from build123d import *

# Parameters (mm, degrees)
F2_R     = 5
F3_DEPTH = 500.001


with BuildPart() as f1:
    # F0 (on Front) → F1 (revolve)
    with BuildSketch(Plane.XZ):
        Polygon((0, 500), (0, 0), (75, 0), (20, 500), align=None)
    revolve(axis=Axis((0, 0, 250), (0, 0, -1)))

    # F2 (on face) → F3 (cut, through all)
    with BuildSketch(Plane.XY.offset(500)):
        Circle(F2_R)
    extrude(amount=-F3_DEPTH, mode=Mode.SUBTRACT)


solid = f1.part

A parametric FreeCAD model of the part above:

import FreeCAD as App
import Part
import Sketcher
Q = App.Units.Quantity

doc = App.newDocument("Part")
params = doc.addObject("Spreadsheet::Sheet", "Params")
for row, (alias, value) in enumerate([
    ("sketch1_width", "75 mm"),
    ("sketch1_width2", "20 mm"),
    ("sketch1_height", "500 mm"),
    ("revolution_angle", "360 deg"),
    ("sketch2_diameter", "10 mm"),
], start=1):
    params.set(f"A{row}", alias)
    params.set(f"B{row}", "=" + value)
    params.setAlias(f"B{row}", alias)

body = doc.addObject("PartDesign::Body", "Body")

# Sketch on XZ plane
sketch1 = doc.addObject("Sketcher::SketchObject", "Sketch")
body.addObject(sketch1)
sketch1.AttachmentSupport = (doc.XZ_Plane, [""])
sketch1.MapMode = "FlatFace"
sketch1.addGeometry(Part.LineSegment(App.Vector(0, 500, 0), App.Vector(0, 0, 0)), False)
sketch1.addGeometry(Part.LineSegment(App.Vector(0, 0, 0), App.Vector(75, 0, 0)), False)
sketch1.addGeometry(Part.LineSegment(App.Vector(75, 0, 0), App.Vector(20, 500, 0)), False)
sketch1.addGeometry(Part.LineSegment(App.Vector(20, 500, 0), App.Vector(0, 500, 0)), False)
sketch1.addConstraint(Sketcher.Constraint("Coincident", 0, 2, 1, 1))
sketch1.addConstraint(Sketcher.Constraint("Coincident", 1, 2, 2, 1))
sketch1.addConstraint(Sketcher.Constraint("Coincident", 2, 2, 3, 1))
sketch1.addConstraint(Sketcher.Constraint("Coincident", 3, 2, 0, 1))
sketch1.addConstraint(Sketcher.Constraint("Vertical", 0))
sketch1.addConstraint(Sketcher.Constraint("Horizontal", 1))
sketch1.addConstraint(Sketcher.Constraint("Horizontal", 3))
sketch1.addConstraint(Sketcher.Constraint("Coincident", 0, 2, -1, 1))
sketch1.addConstraint(Sketcher.Constraint("DistanceX", 1, 1, 1, 2, Q("75 mm")))
sketch1.addConstraint(Sketcher.Constraint("DistanceX", 3, 2, 3, 1, Q("20 mm")))
sketch1.addConstraint(Sketcher.Constraint("DistanceY", 0, 2, 0, 1, Q("500 mm")))
sketch1.setExpression("Constraints[8]", "Params.sketch1_width")
sketch1.setExpression("Constraints[9]", "Params.sketch1_width2")
sketch1.setExpression("Constraints[10]", "Params.sketch1_height")
revolution = doc.addObject("PartDesign::Revolution", "Revolution")
body.addObject(revolution)
revolution.Profile = sketch1
revolution.ReferenceAxis = (sketch1, ["V_Axis"])
revolution.setExpression("Angle", "Params.revolution_angle")

# Sketch on XY plane
sketch2 = doc.addObject("Sketcher::SketchObject", "Sketch001")
body.addObject(sketch2)
sketch2.AttachmentSupport = (doc.XY_Plane, [""])
sketch2.MapMode = "FlatFace"
sketch2.AttachmentOffset = App.Placement(App.Vector(0, 0, 500), App.Rotation())
sketch2.addGeometry(Part.Circle(App.Vector(0, 0, 0), App.Vector(0, 0, 1), 5), False)
sketch2.addConstraint(Sketcher.Constraint("Coincident", 0, 3, -1, 1))
sketch2.addConstraint(Sketcher.Constraint("Diameter", 0, Q("10 mm")))
sketch2.setExpression("Constraints[1]", "Params.sketch2_diameter")
pocket1 = doc.addObject("PartDesign::Pocket", "Pocket")
body.addObject(pocket1)
pocket1.Profile = sketch2
pocket1.Type = "ThroughAll"

doc.recompute()
